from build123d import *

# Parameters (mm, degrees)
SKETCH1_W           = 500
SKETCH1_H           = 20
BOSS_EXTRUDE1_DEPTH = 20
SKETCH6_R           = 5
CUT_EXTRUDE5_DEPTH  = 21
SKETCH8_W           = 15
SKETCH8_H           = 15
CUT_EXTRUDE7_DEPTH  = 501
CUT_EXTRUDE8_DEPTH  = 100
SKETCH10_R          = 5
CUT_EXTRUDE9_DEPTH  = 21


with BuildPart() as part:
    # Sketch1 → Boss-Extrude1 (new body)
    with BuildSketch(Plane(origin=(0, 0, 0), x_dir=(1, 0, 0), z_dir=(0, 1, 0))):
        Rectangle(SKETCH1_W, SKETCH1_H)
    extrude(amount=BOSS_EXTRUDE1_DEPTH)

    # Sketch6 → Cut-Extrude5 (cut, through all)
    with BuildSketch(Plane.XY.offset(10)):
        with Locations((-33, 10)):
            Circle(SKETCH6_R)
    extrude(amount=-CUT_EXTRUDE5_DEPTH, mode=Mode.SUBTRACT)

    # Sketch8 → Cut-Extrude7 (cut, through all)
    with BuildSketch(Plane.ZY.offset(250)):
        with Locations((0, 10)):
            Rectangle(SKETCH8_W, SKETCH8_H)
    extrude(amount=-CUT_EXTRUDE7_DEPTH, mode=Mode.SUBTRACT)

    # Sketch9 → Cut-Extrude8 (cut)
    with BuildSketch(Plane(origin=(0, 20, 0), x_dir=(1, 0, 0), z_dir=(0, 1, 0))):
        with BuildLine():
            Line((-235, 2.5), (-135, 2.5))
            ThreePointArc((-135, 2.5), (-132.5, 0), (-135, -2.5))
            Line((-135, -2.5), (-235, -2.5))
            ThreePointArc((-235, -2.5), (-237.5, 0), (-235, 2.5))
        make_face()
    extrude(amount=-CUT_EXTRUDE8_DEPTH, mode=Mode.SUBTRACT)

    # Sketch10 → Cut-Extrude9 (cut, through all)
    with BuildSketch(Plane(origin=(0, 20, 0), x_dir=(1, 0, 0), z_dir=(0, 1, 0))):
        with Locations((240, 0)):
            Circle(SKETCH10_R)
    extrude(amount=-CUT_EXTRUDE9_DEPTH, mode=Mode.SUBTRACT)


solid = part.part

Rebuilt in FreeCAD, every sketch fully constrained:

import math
import FreeCAD as App
import Part
import Sketcher
from FreeCAD import Vector
Q = App.Units.Quantity

doc = App.newDocument("Part")
params = doc.addObject("Spreadsheet::Sheet", "Params")
for row, (alias, value) in enumerate([
    ("sketch1_width", "500 mm"),
    ("sketch1_height", "20 mm"),
    ("pad1_length", "20 mm"),
    ("sketch2_diameter", "10 mm"),
    ("sketch3_width", "15 mm"),
    ("sketch4_radius", "2.5 mm"),
    ("sketch4_width", "100 mm"),
    ("pocket3_length", "100 mm"),
    ("sketch5_diameter", "10 mm"),
], start=1):
    params.set(f"A{row}", alias)
    params.set(f"B{row}", "=" + value)
    params.setAlias(f"B{row}", alias)

body = doc.addObject("PartDesign::Body", "Body")

sketch1 = body.newObject("Sketcher::SketchObject", "Sketch")
sketch1.AttachmentSupport = (doc.getObject("XZ_Plane"), [""])
sketch1.MapMode = "FlatFace"
sketch1.addGeometry([
    Part.LineSegment(Vector(-250, -10, 0), Vector(-250, 10, 0)),
    Part.LineSegment(Vector(-250, 10, 0), Vector(250, 10, 0)),
    Part.LineSegment(Vector(250, 10, 0), Vector(250, -10, 0)),
    Part.LineSegment(Vector(250, -10, 0), Vector(-250, -10, 0)),
], False)
sketch1.addConstraint([
    Sketcher.Constraint("Coincident", 0, 2, 1, 1),
    Sketcher.Constraint("Coincident", 1, 2, 2, 1),
    Sketcher.Constraint("Coincident", 2, 2, 3, 1),
    Sketcher.Constraint("Coincident", 3, 2, 0, 1),
    Sketcher.Constraint("Vertical", 0),
    Sketcher.Constraint("Horizontal", 1),
    Sketcher.Constraint("Vertical", 2),
    Sketcher.Constraint("Horizontal", 3),
    Sketcher.Constraint("Symmetric", 0, 2, 2, 2, -1, 1),
    Sketcher.Constraint("DistanceX", 1, 1, 1, 2, Q("500 mm")),
    Sketcher.Constraint("DistanceY", 0, 1, 0, 2, Q("20 mm")),
])
sketch1.setExpression("Constraints[9]", "Params.sketch1_width")
sketch1.setExpression("Constraints[10]", "Params.sketch1_height")
pad1 = body.newObject("PartDesign::Pad", "Pad")
pad1.Profile = sketch1
pad1.setExpression("Length", "Params.pad1_length")
pad1.Reversed = True

sketch2 = body.newObject("Sketcher::SketchObject", "Sketch001")
sketch2.AttachmentSupport = (doc.getObject("XY_Plane"), [""])
sketch2.MapMode = "FlatFace"
sketch2.AttachmentOffset = App.Placement(Vector(0, 0, 10), App.Rotation())
sketch2.addGeometry(Part.Circle(Vector(-33, 10, 0), Vector(0, 0, 1), 5), False)
sketch2.addConstraint([
    Sketcher.Constraint("Diameter", 0, Q("10 mm")),
    Sketcher.Constraint("DistanceX", 0, 3, -1, 1, Q("33 mm")),
    Sketcher.Constraint("DistanceY", -1, 1, 0, 3, Q("10 mm")),
])
sketch2.setExpression("Constraints[0]", "Params.sketch2_diameter")
pocket1 = body.newObject("PartDesign::Pocket", "Pocket")
pocket1.Profile = sketch2
pocket1.Type = "ThroughAll"

sketch3 = body.newObject("Sketcher::SketchObject", "Sketch002")
sketch3.AttachmentSupport = (doc.getObject("YZ_Plane"), [""])
sketch3.MapMode = "FlatFace"
sketch3.AttachmentOffset = App.Placement(Vector(0, 0, -250), App.Rotation())
sketch3.addGeometry([
    Part.LineSegment(Vector(18, -8, 0), Vector(2, -8, 0)),
    Part.LineSegment(Vector(2, -8, 0), Vector(2, 8, 0)),
    Part.LineSegment(Vector(2, 8, 0), Vector(18, 8, 0)),
    Part.LineSegment(Vector(18, 8, 0), Vector(18, -8, 0)),
], False)
sketch3.addConstraint([
    Sketcher.Constraint("Coincident", 0, 2, 1, 1),
    Sketcher.Constraint("Coincident", 1, 2, 2, 1),
    Sketcher.Constraint("Coincident", 2, 2, 3, 1),
    Sketcher.Constraint("Coincident", 3, 2, 0, 1),
    Sketcher.Constraint("Horizontal", 0),
    Sketcher.Constraint("Vertical", 1),
    Sketcher.Constraint("Horizontal", 2),
    Sketcher.Constraint("Vertical", 3),
    Sketcher.Constraint("Equal", 2, 1),
    Sketcher.Constraint("DistanceX", 0, 2, 0, 1, Q("15 mm")),
    Sketcher.Constraint("DistanceX", -1, 1, 0, 2, Q("2.5 mm")),
    Sketcher.Constraint("DistanceY", 0, 2, -1, 1, Q("7.5 mm")),
])
sketch3.setExpression("Constraints[9]", "Params.sketch3_width")
pocket2 = body.newObject("PartDesign::Pocket", "Pocket001")
pocket2.Profile = sketch3
pocket2.Type = "ThroughAll"
pocket2.Reversed = True

sketch4 = body.newObject("Sketcher::SketchObject", "Sketch003")
sketch4.AttachmentSupport = (doc.getObject("XZ_Plane"), [""])
sketch4.MapMode = "FlatFace"
sketch4.AttachmentOffset = App.Placement(Vector(0, 0, -20), App.Rotation())
sketch4.addGeometry([
    Part.LineSegment(Vector(-135, -2.5, 0), Vector(-235, -2.5, 0)),
    Part.ArcOfCircle(Part.Circle(Vector(-235, 0, 0), Vector(0, 0, 1), 2.5), math.radians(90), math.radians(270)),
    Part.LineSegment(Vector(-235, 2.5, 0), Vector(-135, 2.5, 0)),
    Part.ArcOfCircle(Part.Circle(Vector(-135, 0, 0), Vector(0, 0, 1), 2.5), math.radians(-90), math.radians(90)),
], False)
sketch4.addConstraint([
    Sketcher.Constraint("Tangent", 0, 2, 1, 2),
    Sketcher.Constraint("Tangent", 1, 1, 2, 1),
    Sketcher.Constraint("Tangent", 2, 2, 3, 2),
    Sketcher.Constraint("Tangent", 3, 1, 0, 1),
    Sketcher.Constraint("Horizontal", 0),
    Sketcher.Constraint("Horizontal", 2),
    Sketcher.Constraint("PointOnObject", 1, 3, -1),
    Sketcher.Constraint("Radius", 1, Q("2.5 mm")),
    Sketcher.Constraint("DistanceX", 0, 2, 0, 1, Q("100 mm")),
    Sketcher.Constraint("DistanceX", 1, 3, -1, 1, Q("235 mm")),
])
sketch4.setExpression("Constraints[7]", "Params.sketch4_radius")
sketch4.setExpression("Constraints[8]", "Params.sketch4_width")
pocket3 = body.newObject("PartDesign::Pocket", "Pocket002")
pocket3.Profile = sketch4
pocket3.setExpression("Length", "Params.pocket3_length")
pocket3.Reversed = True

sketch5 = body.newObject("Sketcher::SketchObject", "Sketch004")
sketch5.AttachmentSupport = (doc.getObject("XZ_Plane"), [""])
sketch5.MapMode = "FlatFace"
sketch5.AttachmentOffset = App.Placement(Vector(0, 0, -20), App.Rotation())
sketch5.addGeometry(Part.Circle(Vector(240, 0, 0), Vector(0, 0, 1), 5), False)
sketch5.addConstraint([
    Sketcher.Constraint("PointOnObject", 0, 3, -1),
    Sketcher.Constraint("Diameter", 0, Q("10 mm")),
    Sketcher.Constraint("DistanceX", -1, 1, 0, 3, Q("240 mm")),
])
sketch5.setExpression("Constraints[1]", "Params.sketch5_diameter")
pocket4 = body.newObject("PartDesign::Pocket", "Pocket003")
pocket4.Profile = sketch5
pocket4.Type = "ThroughAll"
pocket4.Reversed = True

doc.recompute()
